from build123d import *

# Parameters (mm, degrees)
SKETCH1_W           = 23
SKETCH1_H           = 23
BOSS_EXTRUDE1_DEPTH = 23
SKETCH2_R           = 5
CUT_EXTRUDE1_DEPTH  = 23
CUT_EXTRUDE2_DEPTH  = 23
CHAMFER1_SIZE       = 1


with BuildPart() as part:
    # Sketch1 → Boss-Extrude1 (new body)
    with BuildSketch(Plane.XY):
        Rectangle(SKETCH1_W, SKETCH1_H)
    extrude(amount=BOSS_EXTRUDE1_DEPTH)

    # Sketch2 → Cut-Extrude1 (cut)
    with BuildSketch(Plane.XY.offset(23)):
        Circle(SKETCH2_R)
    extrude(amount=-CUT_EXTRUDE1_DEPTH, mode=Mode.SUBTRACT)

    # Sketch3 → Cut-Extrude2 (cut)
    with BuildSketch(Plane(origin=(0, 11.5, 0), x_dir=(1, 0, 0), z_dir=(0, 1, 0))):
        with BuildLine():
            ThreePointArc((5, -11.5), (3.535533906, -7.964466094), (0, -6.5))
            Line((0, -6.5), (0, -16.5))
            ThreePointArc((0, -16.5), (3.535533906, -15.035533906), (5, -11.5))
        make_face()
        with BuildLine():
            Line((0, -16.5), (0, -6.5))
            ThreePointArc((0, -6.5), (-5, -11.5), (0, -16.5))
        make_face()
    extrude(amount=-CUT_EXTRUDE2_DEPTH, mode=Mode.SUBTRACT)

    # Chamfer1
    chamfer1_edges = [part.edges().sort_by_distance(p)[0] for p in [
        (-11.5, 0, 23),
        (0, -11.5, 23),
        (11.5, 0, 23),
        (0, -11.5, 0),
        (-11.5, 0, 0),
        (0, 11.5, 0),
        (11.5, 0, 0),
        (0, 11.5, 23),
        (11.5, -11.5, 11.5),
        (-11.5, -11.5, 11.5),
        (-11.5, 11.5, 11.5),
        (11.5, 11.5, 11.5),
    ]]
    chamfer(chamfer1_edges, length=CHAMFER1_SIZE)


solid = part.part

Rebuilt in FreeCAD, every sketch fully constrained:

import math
import FreeCAD as App
import Part
import Sketcher


def edges_at(feature, points):
    """Names of the edges that pass closest to the given points."""
    edges = feature.Shape.Edges
    near = lambda p: min(range(len(edges)), key=lambda i: edges[i].distToShape(Part.Vertex(*p))[0])
    return sorted({f"Edge{near(p) + 1}" for p in points})


def add_polygon(sketch, points):
    """Adds a closed chain of lines whose ends are joined by coincident constraints."""
    first, n = sketch.GeometryCount, len(points)
    for a, b in zip(points, points[1:] + points[:1]):
        sketch.addGeometry(Part.LineSegment(App.Vector(*a, 0), App.Vector(*b, 0)), False)
    for i in range(n):
        sketch.addConstraint(Sketcher.Constraint("Coincident", first + i, 2, first + (i + 1) % n, 1))

doc = App.newDocument("Part")
body = doc.addObject("PartDesign::Body", "Body")

# Sketch on XY plane
sketch1 = body.newObject("Sketcher::SketchObject", "Sketch")
sketch1.AttachmentSupport = (doc.getObject("XY_Plane"), [""])
sketch1.MapMode = "FlatFace"
add_polygon(sketch1, [(-12, 12), (-12, -12), (12, -12), (12, 12)])  # lines 0-3
sketch1.addConstraint([
    Sketcher.Constraint("Vertical", 0),
    Sketcher.Constraint("Horizontal", 1),
    Sketcher.Constraint("Vertical", 2),
    Sketcher.Constraint("Horizontal", 3),
    Sketcher.Constraint("Symmetric", 0, 2, 2, 2, -1, 1),
    Sketcher.Constraint("Equal", 3, 0),
    Sketcher.Constraint("DistanceX", 1, 1, 1, 2, 23.0),
])
pad1 = body.newObject("PartDesign::Pad", "Pad")
pad1.Profile = sketch1
pad1.Length = 23

# Sketch on XY plane
sketch2 = body.newObject("Sketcher::SketchObject", "Sketch001")
sketch2.AttachmentSupport = (doc.getObject("XY_Plane"), [""])
sketch2.MapMode = "FlatFace"
sketch2.AttachmentOffset = App.Placement(App.Vector(0, 0, 23), App.Rotation())
sketch2.addGeometry(Part.Circle(App.Vector(0, 0, 0), App.Vector(0, 0, 1), 5), False)
sketch2.addConstraint([
    Sketcher.Constraint("Coincident", 0, 3, -1, 1),
    Sketcher.Constraint("Diameter", 0, 10.0),
])
pocket1 = body.newObject("PartDesign::Pocket", "Pocket")
pocket1.Profile = sketch2
pocket1.Length = 23

# Sketch on XZ plane
sketch3 = body.newObject("Sketcher::SketchObject", "Sketch002")
sketch3.AttachmentSupport = (doc.getObject("XZ_Plane"), [""])
sketch3.MapMode = "FlatFace"
sketch3.AttachmentOffset = App.Placement(App.Vector(0, 0, -11.5), App.Rotation())
sketch3.addGeometry([
    Part.ArcOfCircle(Part.Circle(App.Vector(0, 12, 0), App.Vector(0, 0, 1), 5), math.radians(-90), math.radians(0)),
    Part.ArcOfCircle(Part.Circle(App.Vector(0, 12, 0), App.Vector(0, 0, 1), 5), math.radians(90), math.radians(270)),
    Part.ArcOfCircle(Part.Circle(App.Vector(0, 12, 0), App.Vector(0, 0, 1), 5), math.radians(0), math.radians(90)),
], False)
sketch3.addConstraint([
    Sketcher.Constraint("Tangent", 0, 1, 1, 2),
    Sketcher.Constraint("Tangent", 1, 1, 2, 2),
    Sketcher.Constraint("Tangent", 2, 1, 0, 2),
    Sketcher.Constraint("PointOnObject", 0, 3, -2),
    Sketcher.Constraint("PointOnObject", 0, 1, -2),
    Sketcher.Constraint("PointOnObject", 1, 1, -2),
    Sketcher.Constraint("Horizontal", 1, 3, 2, 1),
    Sketcher.Constraint("Radius", 0, 5.0),
    Sketcher.Constraint("DistanceY", -1, 1, 0, 3, 11.5),
])
pocket2 = body.newObject("PartDesign::Pocket", "Pocket001")
pocket2.Profile = sketch3
pocket2.Length = 23
pocket2.Reversed = True
doc.recompute()

chamfer = body.newObject("PartDesign::Chamfer", "Chamfer")
chamfer.Base = (pocket2, edges_at(pocket2, [
    (-11.5, 0, 23),
    (0, -11.5, 23),
    (11.5, 0, 23),
    (0, -11.5, 0),
    (-11.5, 0, 0),
    (0, 11.5, 0),
    (11.5, 0, 0),
    (0, 11.5, 23),
    (11.5, -11.5, 11.5),
    (-11.5, -11.5, 11.5),
    (-11.5, 11.5, 11.5),
    (11.5, 11.5, 11.5),
]))
chamfer.Size = 1

doc.recompute()
